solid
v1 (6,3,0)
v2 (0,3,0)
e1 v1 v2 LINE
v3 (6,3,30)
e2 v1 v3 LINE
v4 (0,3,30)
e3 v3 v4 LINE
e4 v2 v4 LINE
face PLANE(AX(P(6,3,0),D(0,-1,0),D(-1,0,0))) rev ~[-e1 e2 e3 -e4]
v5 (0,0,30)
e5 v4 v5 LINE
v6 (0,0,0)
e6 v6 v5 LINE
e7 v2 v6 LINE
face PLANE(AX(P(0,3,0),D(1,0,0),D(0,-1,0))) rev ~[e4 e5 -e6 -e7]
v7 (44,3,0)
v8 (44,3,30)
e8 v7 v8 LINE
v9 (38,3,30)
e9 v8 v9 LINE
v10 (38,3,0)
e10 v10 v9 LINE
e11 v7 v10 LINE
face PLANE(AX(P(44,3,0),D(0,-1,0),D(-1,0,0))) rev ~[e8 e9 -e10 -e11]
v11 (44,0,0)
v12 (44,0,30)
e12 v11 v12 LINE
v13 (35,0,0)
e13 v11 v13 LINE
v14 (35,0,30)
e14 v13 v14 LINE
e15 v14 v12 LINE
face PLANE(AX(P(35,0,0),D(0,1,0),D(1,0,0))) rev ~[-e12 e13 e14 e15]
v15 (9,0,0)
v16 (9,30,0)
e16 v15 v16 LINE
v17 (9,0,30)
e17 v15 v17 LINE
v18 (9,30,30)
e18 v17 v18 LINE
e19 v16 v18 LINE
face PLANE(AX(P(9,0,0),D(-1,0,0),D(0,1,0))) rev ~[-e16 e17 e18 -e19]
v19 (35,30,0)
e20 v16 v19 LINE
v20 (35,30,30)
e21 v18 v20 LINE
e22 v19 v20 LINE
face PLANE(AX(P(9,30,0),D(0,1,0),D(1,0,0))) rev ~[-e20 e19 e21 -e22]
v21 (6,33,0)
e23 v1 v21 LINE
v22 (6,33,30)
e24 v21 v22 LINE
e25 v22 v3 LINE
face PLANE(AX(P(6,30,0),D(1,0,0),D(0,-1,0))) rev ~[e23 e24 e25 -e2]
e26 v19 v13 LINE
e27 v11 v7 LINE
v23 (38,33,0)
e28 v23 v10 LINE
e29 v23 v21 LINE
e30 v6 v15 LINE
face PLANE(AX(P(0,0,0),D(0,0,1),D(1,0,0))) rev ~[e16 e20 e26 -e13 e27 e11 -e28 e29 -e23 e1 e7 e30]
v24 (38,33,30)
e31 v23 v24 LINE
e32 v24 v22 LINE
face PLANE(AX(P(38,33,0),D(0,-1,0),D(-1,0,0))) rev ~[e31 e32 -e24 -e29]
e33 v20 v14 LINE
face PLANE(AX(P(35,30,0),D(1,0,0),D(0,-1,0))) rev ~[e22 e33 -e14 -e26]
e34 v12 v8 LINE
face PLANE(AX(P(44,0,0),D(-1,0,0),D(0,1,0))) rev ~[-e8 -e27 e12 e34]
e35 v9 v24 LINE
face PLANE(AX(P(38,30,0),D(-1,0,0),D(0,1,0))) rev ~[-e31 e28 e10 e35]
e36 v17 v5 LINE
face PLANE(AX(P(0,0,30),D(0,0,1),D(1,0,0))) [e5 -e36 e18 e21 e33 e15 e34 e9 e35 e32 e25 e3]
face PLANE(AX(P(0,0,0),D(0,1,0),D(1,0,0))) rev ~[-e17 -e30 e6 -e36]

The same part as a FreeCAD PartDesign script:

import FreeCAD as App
import Part
import Sketcher

doc = App.newDocument("Part")
params = doc.addObject("Spreadsheet::Sheet", "Params")
for row, (alias, value) in enumerate([
    ("sketch1_width", "6 mm"),
    ("sketch1_width2", "32 mm"),
    ("sketch1_height", "3 mm"),
    ("sketch1_height2", "30 mm"),
    ("pad1_length", "30 mm"),
], start=1):
    params.set(f"A{row}", alias)
    params.set(f"B{row}", "=" + value)
    params.setAlias(f"B{row}", alias)

body = doc.addObject("PartDesign::Body", "Body")

sketch1 = body.newObject("Sketcher::SketchObject", "Sketch")
sketch1.AttachmentSupport = (doc.getObject("XY_Plane"), [""])
sketch1.MapMode = "FlatFace"
sketch1.addGeometry([
    Part.LineSegment(App.Vector(0, 3, 0), App.Vector(0, 0, 0)),
    Part.LineSegment(App.Vector(0, 0, 0), App.Vector(9, 0, 0)),
    Part.LineSegment(App.Vector(9, 0, 0), App.Vector(9, 30, 0)),
    Part.LineSegment(App.Vector(9, 30, 0), App.Vector(35, 30, 0)),
    Part.LineSegment(App.Vector(35, 30, 0), App.Vector(35, 0, 0)),
    Part.LineSegment(App.Vector(35, 0, 0), App.Vector(44, 0, 0)),
    Part.LineSegment(App.Vector(44, 0, 0), App.Vector(44, 3, 0)),
    Part.LineSegment(App.Vector(44, 3, 0), App.Vector(38, 3, 0)),
    Part.LineSegment(App.Vector(38, 3, 0), App.Vector(38, 33, 0)),
    Part.LineSegment(App.Vector(38, 33, 0), App.Vector(6, 33, 0)),
    Part.LineSegment(App.Vector(6, 33, 0), App.Vector(6, 3, 0)),
    Part.LineSegment(App.Vector(6, 3, 0), App.Vector(0, 3, 0)),
], False)
sketch1.addConstraint([
    Sketcher.Constraint("Coincident", 0, 2, 1, 1),
    Sketcher.Constraint("Coincident", 1, 2, 2, 1),
    Sketcher.Constraint("Coincident", 2, 2, 3, 1),
    Sketcher.Constraint("Coincident", 3, 2, 4, 1),
    Sketcher.Constraint("Coincident", 4, 2, 5, 1),
    Sketcher.Constraint("Coincident", 5, 2, 6, 1),
    Sketcher.Constraint("Coincident", 6, 2, 7, 1),
    Sketcher.Constraint("Coincident", 7, 2, 8, 1),
    Sketcher.Constraint("Coincident", 8, 2, 9, 1),
    Sketcher.Constraint("Coincident", 9, 2, 10, 1),
    Sketcher.Constraint("Coincident", 10, 2, 11, 1),
    Sketcher.Constraint("Coincident", 11, 2, 0, 1),
    Sketcher.Constraint("Vertical", 0),
    Sketcher.Constraint("Horizontal", 1),
    Sketcher.Constraint("Vertical", 2),
    Sketcher.Constraint("Horizontal", 3),
    Sketcher.Constraint("Vertical", 4),
    Sketcher.Constraint("Horizontal", 5),
    Sketcher.Constraint("Vertical", 6),
    Sketcher.Constraint("Horizontal", 7),
    Sketcher.Constraint("Vertical", 8),
    Sketcher.Constraint("Horizontal", 9),
    Sketcher.Constraint("Vertical", 10),
    Sketcher.Constraint("Horizontal", 11),
    Sketcher.Constraint("Coincident", 0, 2, -1, 1),
    Sketcher.Constraint("PointOnObject", 4, 2, -1),
    Sketcher.Constraint("Horizontal", 7, 2, 10, 2),
    Sketcher.Constraint("Equal", 1, 5),
    Sketcher.Constraint("Equal", 7, 11),
    Sketcher.Constraint("Equal", 4, 8),
    Sketcher.Constraint("DistanceX", 7, 2, 7, 1, 6.0),
    Sketcher.Constraint("DistanceX", 9, 2, 9, 1, 32.0),
    Sketcher.Constraint("DistanceY", 0, 2, 0, 1, 3.0),
    Sketcher.Constraint("DistanceY", 2, 1, 2, 2, 30.0),
    Sketcher.Constraint("DistanceX", 4, 2, 7, 2, 3.0),
])
sketch1.setExpression("Constraints[30]", "Params.sketch1_width")
sketch1.setExpression("Constraints[31]", "Params.sketch1_width2")
sketch1.setExpression("Constraints[32]", "Params.sketch1_height")
sketch1.setExpression("Constraints[33]", "Params.sketch1_height2")
pad1 = body.newObject("PartDesign::Pad", "Pad")
pad1.Profile = sketch1
pad1.setExpression("Length", "Params.pad1_length")

doc.recompute()
